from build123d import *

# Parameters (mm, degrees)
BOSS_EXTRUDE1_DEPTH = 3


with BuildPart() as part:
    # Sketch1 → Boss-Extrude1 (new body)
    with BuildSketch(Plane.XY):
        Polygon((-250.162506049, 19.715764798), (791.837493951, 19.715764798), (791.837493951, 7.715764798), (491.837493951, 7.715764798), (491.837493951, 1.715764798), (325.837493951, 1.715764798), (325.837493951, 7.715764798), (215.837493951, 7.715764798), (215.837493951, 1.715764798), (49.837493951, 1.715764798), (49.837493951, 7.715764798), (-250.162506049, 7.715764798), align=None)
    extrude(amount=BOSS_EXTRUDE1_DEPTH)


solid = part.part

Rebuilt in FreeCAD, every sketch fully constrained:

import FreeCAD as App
import Part
import Sketcher
from FreeCAD import Vector
Q = App.Units.Quantity

doc = App.newDocument("Part")
body = doc.addObject("PartDesign::Body", "Body")

# Sketch on XY plane
sketch1 = body.newObject("Sketcher::SketchObject", "Sketch")
sketch1.AttachmentSupport = (doc.getObject("XY_Plane"), [""])
sketch1.MapMode = "FlatFace"
sketch1.addGeometry([
    Part.LineSegment(Vector(791.837494, 19.715765, 0), Vector(-250.162506, 19.715765, 0)),  # 0
    Part.LineSegment(Vector(-250.162506, 19.715765, 0), Vector(-250.162506, 7.715765, 0)),  # 1
    Part.LineSegment(Vector(-250.162506, 7.715765, 0), Vector(49.837494, 7.715765, 0)),  # 2
    Part.LineSegment(Vector(49.837494, 7.715765, 0), Vector(49.837494, 1.715765, 0)),  # 3
    Part.LineSegment(Vector(49.837494, 1.715765, 0), Vector(215.837494, 1.715765, 0)),  # 4
    Part.LineSegment(Vector(215.837494, 1.715765, 0), Vector(215.837494, 7.715765, 0)),  # 5
    Part.LineSegment(Vector(215.837494, 7.715765, 0), Vector(325.837494, 7.715765, 0)),  # 6
    Part.LineSegment(Vector(325.837494, 7.715765, 0), Vector(325.837494, 1.715765, 0)),  # 7
    Part.LineSegment(Vector(325.837494, 1.715765, 0), Vector(491.837494, 1.715765, 0)),  # 8
    Part.LineSegment(Vector(491.837494, 1.715765, 0), Vector(491.837494, 7.715765, 0)),  # 9
    Part.LineSegment(Vector(491.837494, 7.715765, 0), Vector(791.837494, 7.715765, 0)),  # 10
    Part.LineSegment(Vector(791.837494, 7.715765, 0), Vector(791.837494, 19.715765, 0)),  # 11
], False)
sketch1.addConstraint([
    Sketcher.Constraint("Coincident", 0, 2, 1, 1),
    Sketcher.Constraint("Coincident", 1, 2, 2, 1),
    Sketcher.Constraint("Coincident", 2, 2, 3, 1),
    Sketcher.Constraint("Coincident", 3, 2, 4, 1),
    Sketcher.Constraint("Coincident", 4, 2, 5, 1),
    Sketcher.Constraint("Coincident", 5, 2, 6, 1),
    Sketcher.Constraint("Coincident", 6, 2, 7, 1),
    Sketcher.Constraint("Coincident", 7, 2, 8, 1),
    Sketcher.Constraint("Coincident", 8, 2, 9, 1),
    Sketcher.Constraint("Coincident", 9, 2, 10, 1),
    Sketcher.Constraint("Coincident", 10, 2, 11, 1),
    Sketcher.Constraint("Coincident", 11, 2, 0, 1),
    Sketcher.Constraint("Horizontal", 0),
    Sketcher.Constraint("Vertical", 1),
    Sketcher.Constraint("Horizontal", 2),
    Sketcher.Constraint("Vertical", 3),
    Sketcher.Constraint("Horizontal", 4),
    Sketcher.Constraint("Vertical", 5),
    Sketcher.Constraint("Horizontal", 6),
    Sketcher.Constraint("Vertical", 7),
    Sketcher.Constraint("Horizontal", 8),
    Sketcher.Constraint("Vertical", 9),
    Sketcher.Constraint("Horizontal", 10),
    Sketcher.Constraint("Vertical", 11),
    Sketcher.Constraint("Horizontal", 2, 2, 5, 2),
    Sketcher.Constraint("Horizontal", 4, 2, 7, 2),
    Sketcher.Constraint("Horizontal", 6, 2, 9, 2),
    Sketcher.Constraint("Equal", 4, 8),
    Sketcher.Constraint("Equal", 2, 10),
    Sketcher.Constraint("DistanceX", 0, 2, 0, 1, Q("1042 mm")),
    Sketcher.Constraint("DistanceX", 2, 1, 2, 2, Q("300 mm")),
    Sketcher.Constraint("DistanceX", 4, 1, 4, 2, Q("166 mm")),
    Sketcher.Constraint("DistanceY", 1, 2, 1, 1, Q("12 mm")),
    Sketcher.Constraint("DistanceY", 3, 2, 3, 1, Q("6 mm")),
    Sketcher.Constraint("DistanceX", 0, 2, -1, 1, Q("250.162506 mm")),
    Sketcher.Constraint("DistanceY", -1, 1, 0, 2, Q("19.715765 mm")),
])
pad1 = body.newObject("PartDesign::Pad", "Pad")
pad1.Profile = sketch1
pad1.Length = 3

doc.recompute()
